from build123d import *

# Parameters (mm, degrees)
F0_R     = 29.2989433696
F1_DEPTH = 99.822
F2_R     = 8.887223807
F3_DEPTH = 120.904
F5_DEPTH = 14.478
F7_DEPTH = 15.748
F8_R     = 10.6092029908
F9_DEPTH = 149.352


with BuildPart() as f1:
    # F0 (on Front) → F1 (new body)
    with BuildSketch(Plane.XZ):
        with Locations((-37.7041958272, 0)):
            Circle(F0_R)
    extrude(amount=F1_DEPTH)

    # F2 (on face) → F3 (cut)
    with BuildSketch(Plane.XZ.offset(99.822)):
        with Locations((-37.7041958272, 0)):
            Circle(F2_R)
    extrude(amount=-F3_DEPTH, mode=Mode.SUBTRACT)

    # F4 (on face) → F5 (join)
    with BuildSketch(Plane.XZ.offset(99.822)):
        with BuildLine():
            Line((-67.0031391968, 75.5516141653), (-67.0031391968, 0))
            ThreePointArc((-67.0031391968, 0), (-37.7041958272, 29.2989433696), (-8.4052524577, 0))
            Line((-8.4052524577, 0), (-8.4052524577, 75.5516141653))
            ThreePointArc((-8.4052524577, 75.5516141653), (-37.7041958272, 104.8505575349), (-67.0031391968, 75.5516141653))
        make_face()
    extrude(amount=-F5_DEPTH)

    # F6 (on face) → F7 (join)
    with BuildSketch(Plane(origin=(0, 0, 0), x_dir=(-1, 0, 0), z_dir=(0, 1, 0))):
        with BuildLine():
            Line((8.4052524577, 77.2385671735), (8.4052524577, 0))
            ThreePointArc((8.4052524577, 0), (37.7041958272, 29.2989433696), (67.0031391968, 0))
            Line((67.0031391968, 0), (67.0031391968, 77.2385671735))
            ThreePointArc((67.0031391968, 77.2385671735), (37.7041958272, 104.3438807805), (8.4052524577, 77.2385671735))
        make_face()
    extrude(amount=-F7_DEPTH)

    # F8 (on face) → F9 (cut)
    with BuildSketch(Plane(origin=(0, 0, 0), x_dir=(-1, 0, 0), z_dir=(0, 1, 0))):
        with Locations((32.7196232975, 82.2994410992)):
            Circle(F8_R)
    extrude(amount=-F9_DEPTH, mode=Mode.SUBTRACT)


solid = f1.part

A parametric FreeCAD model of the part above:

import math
import FreeCAD as App
import Part
import Sketcher

doc = App.newDocument("Part")
params = doc.addObject("Spreadsheet::Sheet", "Params")
for row, (alias, value) in enumerate([
    ("pad1_length", "3.93 in"),
    ("pocket1_length", "4.76 in"),
    ("pad2_length", "0.57 in"),
    ("pad3_length", "0.62 in"),
    ("pocket2_length", "5.88 in"),
], start=1):
    params.set(f"A{row}", alias)
    params.set(f"B{row}", "=" + value)
    params.setAlias(f"B{row}", alias)

body = doc.addObject("PartDesign::Body", "Body")

# Sketch on XZ plane
sketch1 = doc.addObject("Sketcher::SketchObject", "Sketch")
body.addObject(sketch1)
sketch1.AttachmentSupport = (doc.XZ_Plane, [""])
sketch1.MapMode = "FlatFace"
sketch1.addGeometry(Part.Circle(App.Vector(-38, 0, 0), App.Vector(0, 0, 1), 29), False)
sketch1.addConstraint(Sketcher.Constraint("PointOnObject", 0, 3, -1))
sketch1.addConstraint(Sketcher.Constraint("Diameter", 0, 58.597887))
sketch1.addConstraint(Sketcher.Constraint("DistanceX", 0, 3, -1, 1, 37.704196))
pad1 = doc.addObject("PartDesign::Pad", "Pad")
body.addObject(pad1)
pad1.Profile = sketch1
pad1.setExpression("Length", "Params.pad1_length")

# Sketch on XZ plane
sketch2 = doc.addObject("Sketcher::SketchObject", "Sketch001")
body.addObject(sketch2)
sketch2.AttachmentSupport = (doc.XZ_Plane, [""])
sketch2.MapMode = "FlatFace"
sketch2.AttachmentOffset = App.Placement(App.Vector(0, 0, 3.93 * 25.4), App.Rotation())
sketch2.addGeometry(Part.Circle(App.Vector(-38, 0, 0), App.Vector(0, 0, 1), 9), False)
sketch2.addConstraint(Sketcher.Constraint("PointOnObject", 0, 3, -1))
sketch2.addConstraint(Sketcher.Constraint("Diameter", 0, 17.774448))
sketch2.addConstraint(Sketcher.Constraint("DistanceX", 0, 3, -1, 1, 37.704196))
pocket1 = doc.addObject("PartDesign::Pocket", "Pocket")
body.addObject(pocket1)
pocket1.Profile = sketch2
pocket1.setExpression("Length", "Params.pocket1_length")

# Sketch on XZ plane
sketch3 = doc.addObject("Sketcher::SketchObject", "Sketch002")
body.addObject(sketch3)
sketch3.AttachmentSupport = (doc.XZ_Plane, [""])
sketch3.MapMode = "FlatFace"
sketch3.AttachmentOffset = App.Placement(App.Vector(0, 0, 3.93 * 25.4), App.Rotation())
sketch3.addGeometry(Part.LineSegment(App.Vector(-67, 76, 0), App.Vector(-67, 0, 0)), False)
sketch3.addGeometry(Part.ArcOfCircle(Part.Circle(App.Vector(-38, 0, 0), App.Vector(0, 0, 1), 29), math.radians(0), math.radians(180)), False)
sketch3.addGeometry(Part.LineSegment(App.Vector(-8, 0, 0), App.Vector(-8, 76, 0)), False)
sketch3.addGeometry(Part.ArcOfCircle(Part.Circle(App.Vector(-38, 76, 0), App.Vector(0, 0, 1), 29), math.radians(0), math.radians(180)), False)
sketch3.addConstraint(Sketcher.Constraint("Tangent", 0, 2, 1, 2))
sketch3.addConstraint(Sketcher.Constraint("Tangent", 1, 1, 2, 1))
sketch3.addConstraint(Sketcher.Constraint("Tangent", 2, 2, 3, 1))
sketch3.addConstraint(Sketcher.Constraint("Tangent", 3, 2, 0, 1))
sketch3.addConstraint(Sketcher.Constraint("Vertical", 0))
sketch3.addConstraint(Sketcher.Constraint("Vertical", 2))
sketch3.addConstraint(Sketcher.Constraint("PointOnObject", 1, 3, -1))
sketch3.addConstraint(Sketcher.Constraint("Radius", 1, 29.298943))
sketch3.addConstraint(Sketcher.Constraint("DistanceY", 0, 2, 0, 1, 75.551614))
sketch3.addConstraint(Sketcher.Constraint("DistanceX", 0, 2, -1, 1, 67.003139))
pad2 = doc.addObject("PartDesign::Pad", "Pad001")
body.addObject(pad2)
pad2.Profile = sketch3
pad2.setExpression("Length", "Params.pad2_length")
pad2.Reversed = True

# Sketch on XZ plane
sketch4 = doc.addObject("Sketcher::SketchObject", "Sketch003")
body.addObject(sketch4)
sketch4.AttachmentSupport = (doc.XZ_Plane, [""])
sketch4.MapMode = "FlatFace"
sketch4.addGeometry(Part.LineSegment(App.Vector(-8, 77, 0), App.Vector(-8, 0, 0)), False)
sketch4.addGeometry(Part.ArcOfCircle(Part.Circle(App.Vector(-38, 0, 0), App.Vector(0, 0, 1), 29), math.radians(0), math.radians(180)), False)
sketch4.addGeometry(Part.LineSegment(App.Vector(-67, 0, 0), App.Vector(-67, 77, 0)), False)
sketch4.addGeometry(Part.ArcOfCircle(Part.Circle(App.Vector(-38, 75, 0), App.Vector(0, 0, 1), 29), math.radians(4), math.radians(176)), False)
sketch4.addConstraint(Sketcher.Constraint("Tangent", 0, 2, 1, 1))
sketch4.addConstraint(Sketcher.Constraint("Tangent", 1, 2, 2, 1))
sketch4.addConstraint(Sketcher.Constraint("Coincident", 2, 2, 3, 2))
sketch4.addConstraint(Sketcher.Constraint("Coincident", 3, 1, 0, 1))
sketch4.addConstraint(Sketcher.Constraint("Vertical", 0))
sketch4.addConstraint(Sketcher.Constraint("Vertical", 2))
sketch4.addConstraint(Sketcher.Constraint("PointOnObject", 1, 3, -1))
sketch4.addConstraint(Sketcher.Constraint("Horizontal", 2, 2, 3, 1))
sketch4.addConstraint(Sketcher.Constraint("Radius", 3, 29.387708))
sketch4.addConstraint(Sketcher.Constraint("Radius", 1, 29.298943))
sketch4.addConstraint(Sketcher.Constraint("DistanceY", 0, 2, 0, 1, 77.238567))
sketch4.addConstraint(Sketcher.Constraint("DistanceX", 1, 2, -1, 1, 67.003139))
pad3 = doc.addObject("PartDesign::Pad", "Pad002")
body.addObject(pad3)
pad3.Profile = sketch4
pad3.setExpression("Length", "Params.pad3_length")

# Sketch on XZ plane
sketch5 = doc.addObject("Sketcher::SketchObject", "Sketch004")
body.addObject(sketch5)
sketch5.AttachmentSupport = (doc.XZ_Plane, [""])
sketch5.MapMode = "FlatFace"
sketch5.addGeometry(Part.Circle(App.Vector(-33, 82, 0), App.Vector(0, 0, 1), 11), False)
sketch5.addConstraint(Sketcher.Constraint("Diameter", 0, 21.218406))
sketch5.addConstraint(Sketcher.Constraint("DistanceY", -1, 1, 0, 3, 82.299441))
sketch5.addConstraint(Sketcher.Constraint("DistanceX", 0, 3, -1, 1, 32.719623))
pocket2 = doc.addObject("PartDesign::Pocket", "Pocket001")
body.addObject(pocket2)
pocket2.Profile = sketch5
pocket2.setExpression("Length", "Params.pocket2_length")
pocket2.Reversed = True

doc.recompute()
